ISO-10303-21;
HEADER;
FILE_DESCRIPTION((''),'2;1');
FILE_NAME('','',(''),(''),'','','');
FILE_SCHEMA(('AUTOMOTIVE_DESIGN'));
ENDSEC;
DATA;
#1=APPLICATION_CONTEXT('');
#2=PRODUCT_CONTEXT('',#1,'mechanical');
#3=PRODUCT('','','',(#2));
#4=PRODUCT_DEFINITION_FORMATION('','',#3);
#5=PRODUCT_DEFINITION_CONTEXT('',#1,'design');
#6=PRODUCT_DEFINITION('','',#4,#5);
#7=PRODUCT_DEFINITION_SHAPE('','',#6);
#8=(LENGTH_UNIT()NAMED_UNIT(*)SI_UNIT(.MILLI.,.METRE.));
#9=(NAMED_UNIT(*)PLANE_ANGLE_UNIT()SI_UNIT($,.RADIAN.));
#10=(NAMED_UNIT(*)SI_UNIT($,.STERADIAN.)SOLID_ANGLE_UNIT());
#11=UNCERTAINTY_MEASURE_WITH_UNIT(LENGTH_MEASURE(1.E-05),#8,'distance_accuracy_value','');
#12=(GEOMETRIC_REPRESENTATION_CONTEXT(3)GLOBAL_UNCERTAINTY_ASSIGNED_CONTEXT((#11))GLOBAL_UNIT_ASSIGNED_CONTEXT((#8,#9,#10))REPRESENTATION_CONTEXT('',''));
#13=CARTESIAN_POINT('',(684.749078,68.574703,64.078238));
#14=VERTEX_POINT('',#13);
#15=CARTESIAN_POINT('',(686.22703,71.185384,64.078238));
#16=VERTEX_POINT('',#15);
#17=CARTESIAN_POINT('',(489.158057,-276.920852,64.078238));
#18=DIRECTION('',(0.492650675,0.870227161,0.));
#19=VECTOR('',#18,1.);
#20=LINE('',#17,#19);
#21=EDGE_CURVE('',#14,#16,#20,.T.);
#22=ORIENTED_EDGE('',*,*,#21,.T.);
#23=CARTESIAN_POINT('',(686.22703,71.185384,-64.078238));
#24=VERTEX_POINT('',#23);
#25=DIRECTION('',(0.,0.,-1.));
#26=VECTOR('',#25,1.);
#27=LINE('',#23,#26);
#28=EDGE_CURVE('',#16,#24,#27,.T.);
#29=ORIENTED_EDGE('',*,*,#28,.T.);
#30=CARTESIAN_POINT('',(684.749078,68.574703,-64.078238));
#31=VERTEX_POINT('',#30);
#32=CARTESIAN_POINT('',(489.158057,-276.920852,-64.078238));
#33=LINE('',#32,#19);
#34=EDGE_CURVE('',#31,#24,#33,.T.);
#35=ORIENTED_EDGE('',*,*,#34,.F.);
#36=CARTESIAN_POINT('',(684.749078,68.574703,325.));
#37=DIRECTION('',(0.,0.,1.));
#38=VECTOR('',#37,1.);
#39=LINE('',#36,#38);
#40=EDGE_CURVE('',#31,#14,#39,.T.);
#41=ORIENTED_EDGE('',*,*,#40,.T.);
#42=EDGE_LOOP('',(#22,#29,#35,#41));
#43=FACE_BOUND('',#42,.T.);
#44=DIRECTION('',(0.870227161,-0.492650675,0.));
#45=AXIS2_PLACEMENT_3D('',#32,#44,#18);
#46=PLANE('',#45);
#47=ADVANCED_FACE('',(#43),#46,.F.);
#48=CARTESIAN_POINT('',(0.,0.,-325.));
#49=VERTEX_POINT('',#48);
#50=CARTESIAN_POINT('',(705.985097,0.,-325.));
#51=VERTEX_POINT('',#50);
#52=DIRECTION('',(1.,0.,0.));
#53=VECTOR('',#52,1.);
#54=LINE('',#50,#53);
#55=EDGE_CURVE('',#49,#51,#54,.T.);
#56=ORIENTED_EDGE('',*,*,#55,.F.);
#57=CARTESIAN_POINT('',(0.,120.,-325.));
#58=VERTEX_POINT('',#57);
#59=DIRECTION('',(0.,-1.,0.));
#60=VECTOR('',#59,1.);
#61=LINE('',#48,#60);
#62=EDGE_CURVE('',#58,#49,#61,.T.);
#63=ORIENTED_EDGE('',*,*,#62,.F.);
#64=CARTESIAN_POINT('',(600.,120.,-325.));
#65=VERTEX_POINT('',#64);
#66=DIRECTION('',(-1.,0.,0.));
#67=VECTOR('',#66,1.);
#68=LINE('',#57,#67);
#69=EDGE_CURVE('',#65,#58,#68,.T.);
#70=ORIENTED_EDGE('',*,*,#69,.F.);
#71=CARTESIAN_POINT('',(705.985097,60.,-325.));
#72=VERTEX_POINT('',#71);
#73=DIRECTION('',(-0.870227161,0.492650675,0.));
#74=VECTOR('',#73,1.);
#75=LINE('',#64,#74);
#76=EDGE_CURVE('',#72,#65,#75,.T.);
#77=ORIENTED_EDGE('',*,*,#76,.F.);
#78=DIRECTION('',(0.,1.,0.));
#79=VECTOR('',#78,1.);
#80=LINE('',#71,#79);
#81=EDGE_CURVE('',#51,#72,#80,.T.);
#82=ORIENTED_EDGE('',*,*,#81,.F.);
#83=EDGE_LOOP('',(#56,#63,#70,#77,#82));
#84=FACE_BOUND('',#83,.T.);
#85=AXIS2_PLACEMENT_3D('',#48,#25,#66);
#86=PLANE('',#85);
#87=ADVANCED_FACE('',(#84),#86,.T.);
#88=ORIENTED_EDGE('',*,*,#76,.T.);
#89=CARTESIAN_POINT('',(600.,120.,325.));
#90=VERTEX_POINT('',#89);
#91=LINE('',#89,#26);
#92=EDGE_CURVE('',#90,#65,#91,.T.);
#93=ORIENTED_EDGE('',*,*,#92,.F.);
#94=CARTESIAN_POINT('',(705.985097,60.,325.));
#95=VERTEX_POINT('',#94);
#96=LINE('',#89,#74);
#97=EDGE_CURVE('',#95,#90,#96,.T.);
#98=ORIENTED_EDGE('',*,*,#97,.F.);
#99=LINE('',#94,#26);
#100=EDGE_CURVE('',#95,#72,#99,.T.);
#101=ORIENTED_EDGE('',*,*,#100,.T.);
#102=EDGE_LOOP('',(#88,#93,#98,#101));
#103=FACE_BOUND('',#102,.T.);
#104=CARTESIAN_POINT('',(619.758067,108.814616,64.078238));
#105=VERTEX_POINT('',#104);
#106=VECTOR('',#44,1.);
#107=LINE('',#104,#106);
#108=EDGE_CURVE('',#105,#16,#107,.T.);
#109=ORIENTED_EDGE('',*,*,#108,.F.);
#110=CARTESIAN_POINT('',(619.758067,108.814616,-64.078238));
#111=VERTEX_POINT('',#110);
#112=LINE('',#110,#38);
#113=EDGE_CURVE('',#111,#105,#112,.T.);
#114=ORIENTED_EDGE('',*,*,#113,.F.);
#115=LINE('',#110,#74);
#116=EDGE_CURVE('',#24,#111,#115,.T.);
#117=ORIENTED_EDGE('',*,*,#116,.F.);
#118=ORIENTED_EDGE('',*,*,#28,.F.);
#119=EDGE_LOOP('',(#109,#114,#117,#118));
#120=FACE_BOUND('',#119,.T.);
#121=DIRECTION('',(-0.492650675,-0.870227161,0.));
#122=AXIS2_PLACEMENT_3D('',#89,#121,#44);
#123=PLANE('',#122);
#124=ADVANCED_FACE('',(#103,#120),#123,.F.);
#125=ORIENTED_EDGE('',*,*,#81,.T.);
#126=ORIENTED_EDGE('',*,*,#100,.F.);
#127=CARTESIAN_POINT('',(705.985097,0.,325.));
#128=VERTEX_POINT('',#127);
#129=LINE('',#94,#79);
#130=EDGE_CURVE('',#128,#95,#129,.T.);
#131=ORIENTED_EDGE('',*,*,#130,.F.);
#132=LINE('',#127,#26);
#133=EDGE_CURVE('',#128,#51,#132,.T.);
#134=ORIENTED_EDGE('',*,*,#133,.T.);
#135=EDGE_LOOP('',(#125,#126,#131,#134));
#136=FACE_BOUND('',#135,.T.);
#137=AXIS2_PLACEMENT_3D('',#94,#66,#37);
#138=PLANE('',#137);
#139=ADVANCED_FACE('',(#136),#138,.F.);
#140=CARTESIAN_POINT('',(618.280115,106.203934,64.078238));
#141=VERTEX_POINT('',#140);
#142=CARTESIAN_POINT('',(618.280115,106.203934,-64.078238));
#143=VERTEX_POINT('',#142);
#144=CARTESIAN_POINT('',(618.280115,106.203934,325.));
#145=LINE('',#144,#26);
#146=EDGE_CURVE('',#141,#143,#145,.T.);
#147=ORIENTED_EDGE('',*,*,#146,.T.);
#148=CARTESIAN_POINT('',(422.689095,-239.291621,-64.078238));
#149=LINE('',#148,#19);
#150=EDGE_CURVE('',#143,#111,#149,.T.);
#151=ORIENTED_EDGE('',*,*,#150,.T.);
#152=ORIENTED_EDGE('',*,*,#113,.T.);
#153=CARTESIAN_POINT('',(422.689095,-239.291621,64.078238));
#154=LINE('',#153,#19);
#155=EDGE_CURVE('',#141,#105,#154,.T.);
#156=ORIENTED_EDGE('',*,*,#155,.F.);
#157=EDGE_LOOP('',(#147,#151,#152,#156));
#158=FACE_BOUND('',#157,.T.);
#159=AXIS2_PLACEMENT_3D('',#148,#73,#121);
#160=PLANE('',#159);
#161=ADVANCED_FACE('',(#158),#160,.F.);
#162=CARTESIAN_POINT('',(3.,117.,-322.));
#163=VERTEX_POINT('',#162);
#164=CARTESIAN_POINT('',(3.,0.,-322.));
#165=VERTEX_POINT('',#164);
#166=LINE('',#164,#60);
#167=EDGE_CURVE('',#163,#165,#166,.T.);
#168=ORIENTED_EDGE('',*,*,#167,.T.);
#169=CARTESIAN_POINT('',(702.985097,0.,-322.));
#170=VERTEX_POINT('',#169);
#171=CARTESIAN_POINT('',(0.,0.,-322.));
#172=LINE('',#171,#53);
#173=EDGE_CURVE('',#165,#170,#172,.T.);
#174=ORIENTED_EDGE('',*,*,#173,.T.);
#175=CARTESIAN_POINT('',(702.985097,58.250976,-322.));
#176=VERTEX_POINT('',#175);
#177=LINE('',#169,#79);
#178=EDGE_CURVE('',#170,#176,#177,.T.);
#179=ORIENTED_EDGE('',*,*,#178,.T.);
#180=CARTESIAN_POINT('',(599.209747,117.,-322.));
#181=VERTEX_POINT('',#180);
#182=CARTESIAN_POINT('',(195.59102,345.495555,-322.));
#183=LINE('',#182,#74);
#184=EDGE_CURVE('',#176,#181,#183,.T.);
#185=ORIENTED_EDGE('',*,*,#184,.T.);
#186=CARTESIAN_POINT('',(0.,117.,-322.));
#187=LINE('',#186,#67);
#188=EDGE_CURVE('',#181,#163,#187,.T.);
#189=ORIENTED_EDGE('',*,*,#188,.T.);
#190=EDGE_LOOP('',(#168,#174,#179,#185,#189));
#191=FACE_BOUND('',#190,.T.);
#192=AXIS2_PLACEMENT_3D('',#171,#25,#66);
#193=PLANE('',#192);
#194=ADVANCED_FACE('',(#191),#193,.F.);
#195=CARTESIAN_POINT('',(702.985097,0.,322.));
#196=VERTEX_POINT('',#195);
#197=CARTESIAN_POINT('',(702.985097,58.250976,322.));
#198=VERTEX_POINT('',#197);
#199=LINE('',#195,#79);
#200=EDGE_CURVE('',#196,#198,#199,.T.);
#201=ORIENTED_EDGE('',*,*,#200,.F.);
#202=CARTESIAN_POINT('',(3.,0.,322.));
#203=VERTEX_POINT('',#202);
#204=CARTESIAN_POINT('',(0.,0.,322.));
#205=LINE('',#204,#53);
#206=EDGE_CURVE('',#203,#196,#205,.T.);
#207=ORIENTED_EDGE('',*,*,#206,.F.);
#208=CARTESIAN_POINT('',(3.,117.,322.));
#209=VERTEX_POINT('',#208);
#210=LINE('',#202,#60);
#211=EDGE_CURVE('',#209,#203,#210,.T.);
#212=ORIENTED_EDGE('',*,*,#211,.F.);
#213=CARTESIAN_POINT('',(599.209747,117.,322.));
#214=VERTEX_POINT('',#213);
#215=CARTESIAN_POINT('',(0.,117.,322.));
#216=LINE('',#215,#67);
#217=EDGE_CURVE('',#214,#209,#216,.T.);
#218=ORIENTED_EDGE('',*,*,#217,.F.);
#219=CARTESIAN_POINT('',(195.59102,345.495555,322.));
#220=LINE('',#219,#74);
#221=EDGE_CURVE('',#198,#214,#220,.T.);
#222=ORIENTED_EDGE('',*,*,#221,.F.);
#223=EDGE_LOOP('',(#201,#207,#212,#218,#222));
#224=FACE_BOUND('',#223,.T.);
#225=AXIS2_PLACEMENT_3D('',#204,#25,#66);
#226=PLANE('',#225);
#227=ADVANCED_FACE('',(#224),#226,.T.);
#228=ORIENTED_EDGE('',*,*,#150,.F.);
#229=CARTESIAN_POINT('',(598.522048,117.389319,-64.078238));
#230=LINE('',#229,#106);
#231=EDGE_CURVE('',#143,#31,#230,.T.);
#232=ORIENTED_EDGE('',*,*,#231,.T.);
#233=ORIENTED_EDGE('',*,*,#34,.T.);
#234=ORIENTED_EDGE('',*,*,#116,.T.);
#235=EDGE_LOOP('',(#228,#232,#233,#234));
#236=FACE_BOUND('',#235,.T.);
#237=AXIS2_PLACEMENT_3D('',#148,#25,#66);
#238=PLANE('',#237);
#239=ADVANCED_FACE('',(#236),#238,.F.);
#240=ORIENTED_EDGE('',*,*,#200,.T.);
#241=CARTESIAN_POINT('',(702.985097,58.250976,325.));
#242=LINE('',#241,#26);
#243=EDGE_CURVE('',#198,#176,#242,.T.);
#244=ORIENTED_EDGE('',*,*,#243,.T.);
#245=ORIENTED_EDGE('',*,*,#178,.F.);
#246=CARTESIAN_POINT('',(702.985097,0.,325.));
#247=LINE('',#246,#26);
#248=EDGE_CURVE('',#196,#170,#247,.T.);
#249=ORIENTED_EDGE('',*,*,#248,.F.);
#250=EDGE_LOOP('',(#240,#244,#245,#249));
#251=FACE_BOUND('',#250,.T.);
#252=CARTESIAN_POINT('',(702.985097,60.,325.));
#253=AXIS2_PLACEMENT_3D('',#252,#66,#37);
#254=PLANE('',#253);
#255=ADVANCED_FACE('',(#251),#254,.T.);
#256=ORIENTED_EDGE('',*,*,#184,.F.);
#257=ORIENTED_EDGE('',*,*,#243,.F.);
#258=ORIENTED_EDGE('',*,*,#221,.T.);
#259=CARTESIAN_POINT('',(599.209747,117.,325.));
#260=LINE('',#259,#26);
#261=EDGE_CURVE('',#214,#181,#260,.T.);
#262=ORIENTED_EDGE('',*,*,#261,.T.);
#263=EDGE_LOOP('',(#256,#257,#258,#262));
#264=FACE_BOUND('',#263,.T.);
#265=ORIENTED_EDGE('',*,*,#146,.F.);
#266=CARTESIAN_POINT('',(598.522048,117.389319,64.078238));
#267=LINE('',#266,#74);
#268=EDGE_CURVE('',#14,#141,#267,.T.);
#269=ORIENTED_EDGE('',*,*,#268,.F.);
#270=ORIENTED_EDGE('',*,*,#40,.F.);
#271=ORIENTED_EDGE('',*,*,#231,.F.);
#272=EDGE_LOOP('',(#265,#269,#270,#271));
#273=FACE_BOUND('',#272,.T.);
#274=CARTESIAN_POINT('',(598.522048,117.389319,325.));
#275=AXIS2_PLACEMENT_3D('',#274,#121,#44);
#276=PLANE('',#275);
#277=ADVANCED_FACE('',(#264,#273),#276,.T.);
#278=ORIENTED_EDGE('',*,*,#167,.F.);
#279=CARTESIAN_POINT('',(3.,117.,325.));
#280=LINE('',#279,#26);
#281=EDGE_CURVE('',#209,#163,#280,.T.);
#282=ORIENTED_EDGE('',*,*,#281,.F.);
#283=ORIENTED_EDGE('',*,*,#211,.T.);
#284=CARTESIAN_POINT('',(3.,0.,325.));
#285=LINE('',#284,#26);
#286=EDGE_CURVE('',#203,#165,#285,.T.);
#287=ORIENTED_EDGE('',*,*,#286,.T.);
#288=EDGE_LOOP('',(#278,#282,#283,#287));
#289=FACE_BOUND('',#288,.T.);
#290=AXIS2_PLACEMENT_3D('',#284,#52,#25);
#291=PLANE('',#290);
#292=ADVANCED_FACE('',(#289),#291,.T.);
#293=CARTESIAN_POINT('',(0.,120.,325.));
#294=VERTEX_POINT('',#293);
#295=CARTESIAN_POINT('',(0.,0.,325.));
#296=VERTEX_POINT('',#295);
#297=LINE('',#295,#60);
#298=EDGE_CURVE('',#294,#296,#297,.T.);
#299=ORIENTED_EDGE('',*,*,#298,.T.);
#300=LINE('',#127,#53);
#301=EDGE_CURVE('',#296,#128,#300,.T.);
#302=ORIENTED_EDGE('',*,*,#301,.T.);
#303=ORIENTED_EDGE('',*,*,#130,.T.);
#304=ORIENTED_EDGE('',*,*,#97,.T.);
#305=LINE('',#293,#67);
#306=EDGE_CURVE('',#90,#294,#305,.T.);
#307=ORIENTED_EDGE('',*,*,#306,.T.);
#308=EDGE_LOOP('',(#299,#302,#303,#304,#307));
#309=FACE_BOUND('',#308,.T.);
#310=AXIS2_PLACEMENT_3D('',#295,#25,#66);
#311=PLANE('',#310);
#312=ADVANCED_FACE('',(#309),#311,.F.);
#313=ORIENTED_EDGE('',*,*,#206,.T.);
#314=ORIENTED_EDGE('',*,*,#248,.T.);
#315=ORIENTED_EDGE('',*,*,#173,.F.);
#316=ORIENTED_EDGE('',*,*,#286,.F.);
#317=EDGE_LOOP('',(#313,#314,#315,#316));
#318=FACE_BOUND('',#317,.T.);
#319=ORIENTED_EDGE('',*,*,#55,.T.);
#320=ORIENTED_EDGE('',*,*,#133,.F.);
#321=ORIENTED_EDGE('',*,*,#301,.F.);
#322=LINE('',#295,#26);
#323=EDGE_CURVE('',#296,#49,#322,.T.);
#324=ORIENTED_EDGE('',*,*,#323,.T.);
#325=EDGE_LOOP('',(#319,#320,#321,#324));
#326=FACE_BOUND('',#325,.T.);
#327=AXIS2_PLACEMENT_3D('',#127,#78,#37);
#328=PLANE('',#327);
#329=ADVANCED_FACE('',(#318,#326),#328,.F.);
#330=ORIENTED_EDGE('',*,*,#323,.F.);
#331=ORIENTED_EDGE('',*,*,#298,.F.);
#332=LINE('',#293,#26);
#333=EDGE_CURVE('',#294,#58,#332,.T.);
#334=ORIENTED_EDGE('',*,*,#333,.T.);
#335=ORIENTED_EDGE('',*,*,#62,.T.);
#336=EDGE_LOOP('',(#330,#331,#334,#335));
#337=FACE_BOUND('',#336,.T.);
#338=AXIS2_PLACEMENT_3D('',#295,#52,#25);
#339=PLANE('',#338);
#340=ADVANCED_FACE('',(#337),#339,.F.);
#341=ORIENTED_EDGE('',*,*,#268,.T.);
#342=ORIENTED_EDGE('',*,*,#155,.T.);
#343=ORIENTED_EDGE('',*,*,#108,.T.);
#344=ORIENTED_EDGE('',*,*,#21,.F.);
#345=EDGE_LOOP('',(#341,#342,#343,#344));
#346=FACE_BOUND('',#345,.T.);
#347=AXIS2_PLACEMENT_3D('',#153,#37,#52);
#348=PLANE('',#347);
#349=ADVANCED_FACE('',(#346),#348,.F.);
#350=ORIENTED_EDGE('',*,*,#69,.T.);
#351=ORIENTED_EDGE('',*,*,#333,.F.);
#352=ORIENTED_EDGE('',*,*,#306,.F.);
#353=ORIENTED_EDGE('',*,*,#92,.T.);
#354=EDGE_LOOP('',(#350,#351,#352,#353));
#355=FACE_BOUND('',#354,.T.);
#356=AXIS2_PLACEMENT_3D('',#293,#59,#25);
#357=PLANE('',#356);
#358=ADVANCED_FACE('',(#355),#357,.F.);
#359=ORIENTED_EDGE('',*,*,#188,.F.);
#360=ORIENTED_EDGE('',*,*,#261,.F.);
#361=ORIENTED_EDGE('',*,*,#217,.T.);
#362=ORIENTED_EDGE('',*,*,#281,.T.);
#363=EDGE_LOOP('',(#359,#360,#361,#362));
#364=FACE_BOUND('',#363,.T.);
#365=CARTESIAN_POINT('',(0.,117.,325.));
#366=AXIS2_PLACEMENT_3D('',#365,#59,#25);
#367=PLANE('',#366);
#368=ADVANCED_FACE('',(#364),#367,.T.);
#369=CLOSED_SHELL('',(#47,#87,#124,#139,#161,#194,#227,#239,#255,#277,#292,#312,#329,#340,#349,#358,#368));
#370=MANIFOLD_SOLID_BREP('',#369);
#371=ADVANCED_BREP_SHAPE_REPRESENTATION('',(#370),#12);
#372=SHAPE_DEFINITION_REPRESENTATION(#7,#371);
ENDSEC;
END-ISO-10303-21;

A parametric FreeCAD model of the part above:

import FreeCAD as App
import Part
import Sketcher

V = App.Vector


def faces_at(feature, points):
    """Names of the faces that lie closest to the given points."""
    faces = feature.Shape.Faces
    near = lambda p: min(range(len(faces)), key=lambda i: faces[i].distToShape(Part.Vertex(*p))[0])
    return sorted({f"Face{near(p) + 1}" for p in points})

doc = App.newDocument("Part")
params = doc.addObject("Spreadsheet::Sheet", "Params")
for row, (alias, value) in enumerate([
    ("sketch1_width", "600 mm"),
    ("sketch1_height", "120 mm"),
    ("sketch1_height2", "60 mm"),
    ("pad1_length", "650 mm"),
    ("thickness_wall", "3 mm"),
], start=1):
    params.set(f"A{row}", alias)
    params.set(f"B{row}", "=" + value)
    params.setAlias(f"B{row}", alias)

body = doc.addObject("PartDesign::Body", "Body")

sketch1 = body.newObject("Sketcher::SketchObject", "Sketch")
sketch1.AttachmentSupport = (doc.getObject("XY_Plane"), [""])
sketch1.MapMode = "FlatFace"
sketch1.addGeometry([
    Part.LineSegment(V(0, 120, 0), V(0, 0, 0)),
    Part.LineSegment(V(0, 0, 0), V(706, 0, 0)),
    Part.LineSegment(V(706, 0, 0), V(706, 60, 0)),
    Part.LineSegment(V(706, 60, 0), V(600, 120, 0)),
    Part.LineSegment(V(600, 120, 0), V(0, 120, 0)),
], False)
sketch1.addConstraint([
    Sketcher.Constraint("Coincident", 0, 2, 1, 1),
    Sketcher.Constraint("Coincident", 1, 2, 2, 1),
    Sketcher.Constraint("Coincident", 2, 2, 3, 1),
    Sketcher.Constraint("Coincident", 3, 2, 4, 1),
    Sketcher.Constraint("Coincident", 4, 2, 0, 1),
    Sketcher.Constraint("Vertical", 0),
    Sketcher.Constraint("Horizontal", 1),
    Sketcher.Constraint("Vertical", 2),
    Sketcher.Constraint("Horizontal", 4),
    Sketcher.Constraint("Coincident", 0, 2, -1, 1),
    Sketcher.Constraint("DistanceX", 4, 2, 4, 1, 600.0),
    Sketcher.Constraint("DistanceY", 0, 2, 0, 1, 120.0),
    Sketcher.Constraint("DistanceY", 2, 1, 2, 2, 60.0),
    Sketcher.Constraint("Distance", 3, 121.790151),
])
sketch1.setExpression("Constraints[10]", "Params.sketch1_width")
sketch1.setExpression("Constraints[11]", "Params.sketch1_height")
sketch1.setExpression("Constraints[12]", "Params.sketch1_height2")
pad1 = body.newObject("PartDesign::Pad", "Pad")
pad1.Profile = sketch1
pad1.setExpression("Length", "Params.pad1_length")
pad1.Midplane = True
doc.recompute()

thickness = body.newObject("PartDesign::Thickness", "Thickness")
thickness.Base = (pad1, faces_at(pad1, [(352.993, 0, 0)]))
thickness.setExpression("Value", "Params.thickness_wall")
thickness.Reversed = True
thickness.Join = "Intersection"

sketch2 = body.newObject("Sketcher::SketchObject", "Sketch001")
sketch2.Placement = App.Placement(V(197.068972, 348.106237, 0), App.Rotation(V(0.870227161, -0.492650675, 0), V(0, 0, -0.999999999), V(0.492650675, 0.870227161, 0), "ZXY"))
sketch2.addGeometry([
    Part.LineSegment(V(486, 64, 0), V(486, -64, 0)),
    Part.LineSegment(V(486, -64, 0), V(562, -64, 0)),
    Part.LineSegment(V(562, -64, 0), V(562, 64, 0)),
    Part.LineSegment(V(562, 64, 0), V(486, 64, 0)),
], False)
sketch2.addConstraint([
    Sketcher.Constraint("Coincident", 0, 2, 1, 1),
    Sketcher.Constraint("Coincident", 1, 2, 2, 1),
    Sketcher.Constraint("Coincident", 2, 2, 3, 1),
    Sketcher.Constraint("Coincident", 3, 2, 0, 1),
    Sketcher.Constraint("Vertical", 0),
    Sketcher.Constraint("Horizontal", 1),
    Sketcher.Constraint("Vertical", 2),
    Sketcher.Constraint("Horizontal", 3),
    Sketcher.Constraint("DistanceX", 1, 1, 1, 2, 76.381163),
    Sketcher.Constraint("DistanceY", 0, 2, 0, 1, 128.156475),
    Sketcher.Constraint("DistanceX", -1, 1, 0, 2, 485.72271),
    Sketcher.Constraint("DistanceY", 0, 2, -1, 1, 64.078238),
])
pocket1 = body.newObject("PartDesign::Pocket", "Pocket")
pocket1.Profile = sketch2
pocket1.Type = "ThroughAll"

doc.recompute()
